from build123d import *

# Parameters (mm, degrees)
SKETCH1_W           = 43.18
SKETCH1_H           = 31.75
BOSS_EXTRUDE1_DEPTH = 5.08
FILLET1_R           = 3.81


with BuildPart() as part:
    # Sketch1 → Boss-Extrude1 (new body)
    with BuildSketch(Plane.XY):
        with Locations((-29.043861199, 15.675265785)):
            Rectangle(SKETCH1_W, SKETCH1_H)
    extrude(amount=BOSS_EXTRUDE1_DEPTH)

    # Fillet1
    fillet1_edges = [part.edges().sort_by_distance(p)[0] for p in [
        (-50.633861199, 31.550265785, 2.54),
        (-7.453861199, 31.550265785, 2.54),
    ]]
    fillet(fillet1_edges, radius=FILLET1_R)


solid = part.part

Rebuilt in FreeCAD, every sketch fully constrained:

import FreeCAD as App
import Part
import Sketcher
Q = App.Units.Quantity


def edges_at(feature, points):
    """Names of the edges that pass closest to the given points."""
    edges = feature.Shape.Edges
    near = lambda p: min(range(len(edges)), key=lambda i: edges[i].distToShape(Part.Vertex(*p))[0])
    return sorted({f"Edge{near(p) + 1}" for p in points})

doc = App.newDocument("Part")
params = doc.addObject("Spreadsheet::Sheet", "Params")
for row, (alias, value) in enumerate([
    ("sketch1_width", "1.7 in"),
    ("sketch1_height", "1.25 in"),
    ("pad1_length", "0.2 in"),
    ("fillet_radius", "0.15 in"),
], start=1):
    params.set(f"A{row}", alias)
    params.set(f"B{row}", "=" + value)
    params.setAlias(f"B{row}", alias)

body = doc.addObject("PartDesign::Body", "Body")

# Sketch on XY plane
sketch1 = body.newObject("Sketcher::SketchObject", "Sketch")
sketch1.AttachmentSupport = (doc.getObject("XY_Plane"), [""])
sketch1.MapMode = "FlatFace"
sketch1.addGeometry([
    Part.LineSegment(App.Vector(-50.633861, 31.550266, 0), App.Vector(-50.633861, -0.199734, 0)),
    Part.LineSegment(App.Vector(-50.633861, -0.199734, 0), App.Vector(-7.453861, -0.199734, 0)),
    Part.LineSegment(App.Vector(-7.453861, -0.199734, 0), App.Vector(-7.453861, 31.550266, 0)),
    Part.LineSegment(App.Vector(-7.453861, 31.550266, 0), App.Vector(-50.633861, 31.550266, 0)),
], False)
sketch1.addConstraint([
    Sketcher.Constraint("Coincident", 0, 2, 1, 1),
    Sketcher.Constraint("Coincident", 1, 2, 2, 1),
    Sketcher.Constraint("Coincident", 2, 2, 3, 1),
    Sketcher.Constraint("Coincident", 3, 2, 0, 1),
    Sketcher.Constraint("Vertical", 0),
    Sketcher.Constraint("Horizontal", 1),
    Sketcher.Constraint("Vertical", 2),
    Sketcher.Constraint("Horizontal", 3),
    Sketcher.Constraint("DistanceX", 1, 1, 1, 2, Q("1.7 in")),
    Sketcher.Constraint("DistanceY", 0, 2, 0, 1, Q("1.25 in")),
    Sketcher.Constraint("DistanceX", 0, 2, -1, 1, 50.633861),
    Sketcher.Constraint("DistanceY", 0, 2, -1, 1, 0.199734),
])
sketch1.setExpression("Constraints[8]", "Params.sketch1_width")
sketch1.setExpression("Constraints[9]", "Params.sketch1_height")
pad1 = body.newObject("PartDesign::Pad", "Pad")
pad1.Profile = sketch1
pad1.setExpression("Length", "Params.pad1_length")
doc.recompute()

fillet = body.newObject("PartDesign::Fillet", "Fillet")
fillet.Base = (pad1, edges_at(pad1, [(-50.634, 31.55, 2.54), (-7.454, 31.55, 2.54)]))
fillet.setExpression("Radius", "Params.fillet_radius")

doc.recompute()
